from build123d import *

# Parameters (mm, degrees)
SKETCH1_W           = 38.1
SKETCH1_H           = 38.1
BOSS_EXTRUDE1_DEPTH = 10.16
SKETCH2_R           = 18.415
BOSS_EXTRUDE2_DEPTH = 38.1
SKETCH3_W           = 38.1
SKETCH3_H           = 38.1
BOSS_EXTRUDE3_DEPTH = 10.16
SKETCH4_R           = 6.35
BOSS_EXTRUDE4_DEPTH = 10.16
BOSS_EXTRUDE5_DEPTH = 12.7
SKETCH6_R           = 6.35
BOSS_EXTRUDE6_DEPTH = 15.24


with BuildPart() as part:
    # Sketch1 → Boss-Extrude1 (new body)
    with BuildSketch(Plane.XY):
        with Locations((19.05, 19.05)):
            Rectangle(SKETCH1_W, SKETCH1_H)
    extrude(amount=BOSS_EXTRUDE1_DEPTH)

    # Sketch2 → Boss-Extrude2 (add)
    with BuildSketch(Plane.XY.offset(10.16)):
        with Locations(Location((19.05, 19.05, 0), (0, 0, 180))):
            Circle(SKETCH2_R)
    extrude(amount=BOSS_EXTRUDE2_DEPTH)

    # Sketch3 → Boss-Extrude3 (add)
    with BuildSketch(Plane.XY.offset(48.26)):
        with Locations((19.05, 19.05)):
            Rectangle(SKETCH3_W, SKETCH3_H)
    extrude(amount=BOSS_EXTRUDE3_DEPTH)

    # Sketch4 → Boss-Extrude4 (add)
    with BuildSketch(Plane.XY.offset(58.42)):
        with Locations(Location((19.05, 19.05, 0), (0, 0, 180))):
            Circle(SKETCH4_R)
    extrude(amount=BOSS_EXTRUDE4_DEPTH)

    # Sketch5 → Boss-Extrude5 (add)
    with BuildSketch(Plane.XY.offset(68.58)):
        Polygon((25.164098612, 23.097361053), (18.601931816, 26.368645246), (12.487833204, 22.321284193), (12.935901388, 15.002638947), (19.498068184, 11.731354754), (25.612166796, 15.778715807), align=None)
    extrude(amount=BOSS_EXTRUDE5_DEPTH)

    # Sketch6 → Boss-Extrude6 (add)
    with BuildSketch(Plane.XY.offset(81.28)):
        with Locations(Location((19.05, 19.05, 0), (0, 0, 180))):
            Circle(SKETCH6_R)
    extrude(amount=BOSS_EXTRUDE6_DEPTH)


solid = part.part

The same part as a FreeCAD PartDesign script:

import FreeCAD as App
import Part
import Sketcher
from FreeCAD import Vector
Q = App.Units.Quantity


def add_polygon(sketch, points):
    """Adds a closed chain of lines whose ends are joined by coincident constraints."""
    first, n = sketch.GeometryCount, len(points)
    for a, b in zip(points, points[1:] + points[:1]):
        sketch.addGeometry(Part.LineSegment(App.Vector(*a, 0), App.Vector(*b, 0)), False)
    for i in range(n):
        sketch.addConstraint(Sketcher.Constraint("Coincident", first + i, 2, first + (i + 1) % n, 1))

doc = App.newDocument("Part")
body = doc.addObject("PartDesign::Body", "Body")

# Sketch on XY plane
sketch1 = body.newObject("Sketcher::SketchObject", "Sketch")
sketch1.AttachmentSupport = (doc.getObject("XY_Plane"), [""])
sketch1.MapMode = "FlatFace"
add_polygon(sketch1, [(0, 38.1), (0, 0), (38.1, 0), (38.1, 38.1)])  # lines 0-3
sketch1.addConstraint([
    Sketcher.Constraint("Vertical", 0),
    Sketcher.Constraint("Horizontal", 1),
    Sketcher.Constraint("Vertical", 2),
    Sketcher.Constraint("Horizontal", 3),
    Sketcher.Constraint("Coincident", 0, 2, -1, 1),
    Sketcher.Constraint("Equal", 3, 0),
    Sketcher.Constraint("DistanceX", 1, 1, 1, 2, Q("1.5 in")),
])
pad1 = body.newObject("PartDesign::Pad", "Pad")
pad1.Profile = sketch1
pad1.Length = Q("0.4 in")

# Sketch on XY plane
sketch2 = body.newObject("Sketcher::SketchObject", "Sketch001")
sketch2.AttachmentSupport = (doc.getObject("XY_Plane"), [""])
sketch2.MapMode = "FlatFace"
sketch2.AttachmentOffset = App.Placement(Vector(0, 0, 0.4 * 25.4), App.Rotation())
sketch2.addGeometry(Part.Circle(Vector(19.05, 19.05, 0), Vector(0, 0, 1), 18.415), False)
sketch2.addConstraint([
    Sketcher.Constraint("Diameter", 0, Q("1.45 in")),
    Sketcher.Constraint("DistanceX", -1, 1, 0, 3, Q("0.75 in")),
    Sketcher.Constraint("DistanceY", -1, 1, 0, 3, Q("0.75 in")),
])
pad2 = body.newObject("PartDesign::Pad", "Pad001")
pad2.Profile = sketch2
pad2.Length = Q("1.5 in")

# Sketch on XY plane
sketch3 = body.newObject("Sketcher::SketchObject", "Sketch002")
sketch3.AttachmentSupport = (doc.getObject("XY_Plane"), [""])
sketch3.MapMode = "FlatFace"
sketch3.AttachmentOffset = App.Placement(Vector(0, 0, 1.9 * 25.4), App.Rotation())
add_polygon(sketch3, [(0, 38.1), (0, 0), (38.1, 0), (38.1, 38.1)])  # lines 0-3
sketch3.addConstraint([
    Sketcher.Constraint("Vertical", 0),
    Sketcher.Constraint("Horizontal", 1),
    Sketcher.Constraint("Vertical", 2),
    Sketcher.Constraint("Horizontal", 3),
    Sketcher.Constraint("Coincident", 0, 2, -1, 1),
    Sketcher.Constraint("Equal", 3, 0),
    Sketcher.Constraint("DistanceX", 1, 1, 1, 2, Q("1.5 in")),
])
pad3 = body.newObject("PartDesign::Pad", "Pad002")
pad3.Profile = sketch3
pad3.Length = Q("0.4 in")

# Sketch on XY plane
sketch4 = body.newObject("Sketcher::SketchObject", "Sketch003")
sketch4.AttachmentSupport = (doc.getObject("XY_Plane"), [""])
sketch4.MapMode = "FlatFace"
sketch4.AttachmentOffset = App.Placement(Vector(0, 0, 2.3 * 25.4), App.Rotation())
sketch4.addGeometry(Part.Circle(Vector(19.05, 19.05, 0), Vector(0, 0, 1), 6.35), False)
sketch4.addConstraint([
    Sketcher.Constraint("Diameter", 0, Q("0.5 in")),
    Sketcher.Constraint("DistanceX", -1, 1, 0, 3, Q("0.75 in")),
    Sketcher.Constraint("DistanceY", -1, 1, 0, 3, Q("0.75 in")),
])
pad4 = body.newObject("PartDesign::Pad", "Pad003")
pad4.Profile = sketch4
pad4.Length = Q("0.4 in")

# Sketch on XY plane
sketch5 = body.newObject("Sketcher::SketchObject", "Sketch004")
sketch5.AttachmentSupport = (doc.getObject("XY_Plane"), [""])
sketch5.MapMode = "FlatFace"
sketch5.AttachmentOffset = App.Placement(Vector(0, 0, 2.7 * 25.4), App.Rotation())
add_polygon(sketch5, [(25.164099, 23.097361), (18.601932, 26.368645), (12.487833, 22.321284), (12.935901, 15.002639), (19.498068, 11.731355), (25.612167, 15.778716)])  # lines 0-5
sketch5.addConstraint([
    Sketcher.Constraint("Parallel", 0, 3),
    Sketcher.Constraint("Parallel", 1, 4),
    Sketcher.Constraint("Parallel", 2, 5),
    Sketcher.Constraint("Equal", 0, 1),
    Sketcher.Constraint("Equal", 1, 2),
    Sketcher.Constraint("Equal", 2, 3),
    Sketcher.Constraint("DistanceX", -1, 1, 2, 2, 12.935901),
    Sketcher.Constraint("DistanceX", -1, 1, 5, 2, 25.164099),
    Sketcher.Constraint("DistanceX", 1, 2, 0, 2, 6.114099),
    Sketcher.Constraint("Distance", 0, 7.332348),
    Sketcher.Constraint("DistanceX", -1, 1, 0, 2, 18.601932),
    Sketcher.Constraint("DistanceY", -1, 1, 2, 2, 15.002639),
])
pad5 = body.newObject("PartDesign::Pad", "Pad004")
pad5.Profile = sketch5
pad5.Length = Q("0.5 in")

# Sketch on XY plane
sketch6 = body.newObject("Sketcher::SketchObject", "Sketch005")
sketch6.AttachmentSupport = (doc.getObject("XY_Plane"), [""])
sketch6.MapMode = "FlatFace"
sketch6.AttachmentOffset = App.Placement(Vector(0, 0, 3.2 * 25.4), App.Rotation())
sketch6.addGeometry(Part.Circle(Vector(19.05, 19.05, 0), Vector(0, 0, 1), 6.35), False)
sketch6.addConstraint([
    Sketcher.Constraint("Diameter", 0, Q("0.5 in")),
    Sketcher.Constraint("DistanceX", -1, 1, 0, 3, Q("0.75 in")),
    Sketcher.Constraint("DistanceY", -1, 1, 0, 3, Q("0.75 in")),
])
pad6 = body.newObject("PartDesign::Pad", "Pad005")
pad6.Profile = sketch6
pad6.Length = Q("0.6 in")

doc.recompute()
